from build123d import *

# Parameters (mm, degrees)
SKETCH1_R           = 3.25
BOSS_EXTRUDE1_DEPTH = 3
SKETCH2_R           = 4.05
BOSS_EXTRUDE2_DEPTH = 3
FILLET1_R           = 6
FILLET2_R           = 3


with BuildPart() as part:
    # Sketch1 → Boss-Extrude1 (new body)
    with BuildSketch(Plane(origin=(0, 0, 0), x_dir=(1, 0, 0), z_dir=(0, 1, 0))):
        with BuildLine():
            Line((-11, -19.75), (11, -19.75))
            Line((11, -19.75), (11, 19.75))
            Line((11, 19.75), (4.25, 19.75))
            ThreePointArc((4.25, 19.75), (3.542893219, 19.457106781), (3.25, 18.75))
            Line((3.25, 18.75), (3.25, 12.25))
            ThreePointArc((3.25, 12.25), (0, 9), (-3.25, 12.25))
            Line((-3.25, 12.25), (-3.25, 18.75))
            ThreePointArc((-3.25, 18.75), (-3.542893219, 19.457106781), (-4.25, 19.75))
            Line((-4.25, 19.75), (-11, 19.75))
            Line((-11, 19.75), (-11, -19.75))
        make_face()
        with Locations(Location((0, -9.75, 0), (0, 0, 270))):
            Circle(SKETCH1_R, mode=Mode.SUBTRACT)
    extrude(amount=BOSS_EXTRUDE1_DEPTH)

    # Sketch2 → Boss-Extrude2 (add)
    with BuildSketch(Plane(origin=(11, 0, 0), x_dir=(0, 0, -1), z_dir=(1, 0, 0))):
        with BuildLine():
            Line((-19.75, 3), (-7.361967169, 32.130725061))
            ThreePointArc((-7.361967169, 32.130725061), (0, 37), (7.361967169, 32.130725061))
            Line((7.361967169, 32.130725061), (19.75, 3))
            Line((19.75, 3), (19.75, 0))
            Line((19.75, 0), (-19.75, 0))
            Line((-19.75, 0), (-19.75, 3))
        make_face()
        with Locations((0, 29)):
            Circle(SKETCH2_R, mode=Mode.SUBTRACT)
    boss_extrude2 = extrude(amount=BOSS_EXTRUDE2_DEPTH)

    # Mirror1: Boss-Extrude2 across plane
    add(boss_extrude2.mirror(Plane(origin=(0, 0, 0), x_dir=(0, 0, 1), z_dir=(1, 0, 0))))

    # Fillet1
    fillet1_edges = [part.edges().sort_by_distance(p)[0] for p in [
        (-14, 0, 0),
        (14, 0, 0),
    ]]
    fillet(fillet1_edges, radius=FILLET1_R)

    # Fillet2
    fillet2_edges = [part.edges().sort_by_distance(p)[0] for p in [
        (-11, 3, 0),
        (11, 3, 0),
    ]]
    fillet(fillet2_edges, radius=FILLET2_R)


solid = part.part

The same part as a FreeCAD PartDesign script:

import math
import FreeCAD as App
import Part
import Sketcher
from FreeCAD import Vector


def edges_at(feature, points):
    """Names of the edges that pass closest to the given points."""
    edges = feature.Shape.Edges
    near = lambda p: min(range(len(edges)), key=lambda i: edges[i].distToShape(Part.Vertex(*p))[0])
    return sorted({f"Edge{near(p) + 1}" for p in points})

doc = App.newDocument("Part")
params = doc.addObject("Spreadsheet::Sheet", "Params")
for row, (alias, value) in enumerate([
    ("sketch1_radius", "1 mm"),
    ("sketch1_diameter", "6.5 mm"),
    ("sketch1_width", "22 mm"),
    ("sketch1_height", "39.5 mm"),
    ("sketch1_height2", "6.5 mm"),
    ("pad1_length", "3 mm"),
    ("sketch2_radius", "8 mm"),
    ("sketch2_diameter", "8.1 mm"),
    ("sketch2_width", "3 mm"),
    ("sketch2_height", "39.5 mm"),
    ("pad2_length", "3 mm"),
    ("fillet_radius", "6 mm"),
    ("fillet2_radius", "3 mm"),
], start=1):
    params.set(f"A{row}", alias)
    params.set(f"B{row}", "=" + value)
    params.setAlias(f"B{row}", alias)

body = doc.addObject("PartDesign::Body", "Body")

# Sketch on XZ plane
sketch1 = body.newObject("Sketcher::SketchObject", "Sketch")
sketch1.AttachmentSupport = (doc.getObject("XZ_Plane"), [""])
sketch1.MapMode = "FlatFace"
sketch1.addGeometry(Part.LineSegment(Vector(-11, 19.8, 0), Vector(11, 19.8, 0)), False)
sketch1.addGeometry(Part.LineSegment(Vector(11, 19.8, 0), Vector(11, -19.8, 0)), False)
sketch1.addGeometry(Part.LineSegment(Vector(11, -19.8, 0), Vector(4.2, -19.8, 0)), False)
sketch1.addGeometry(Part.ArcOfCircle(Part.Circle(Vector(4.3, -18.7, 0), Vector(0, 0, 1), 1), math.radians(-180), math.radians(-90)), False)
sketch1.addGeometry(Part.LineSegment(Vector(3.2, -18.8, 0), Vector(3.2, -12.2, 0)), False)
sketch1.addGeometry(Part.ArcOfCircle(Part.Circle(Vector(0, -12.2, 0), Vector(0, 0, 1), 3.2), math.radians(0), math.radians(180)), False)
sketch1.addGeometry(Part.LineSegment(Vector(-3.2, -12.2, 0), Vector(-3.2, -18.8, 0)), False)
sketch1.addGeometry(Part.ArcOfCircle(Part.Circle(Vector(-4.3, -18.7, 0), Vector(0, 0, 1), 1), math.radians(-90), math.radians(0)), False)
sketch1.addGeometry(Part.LineSegment(Vector(-4.2, -19.8, 0), Vector(-11, -19.8, 0)), False)
sketch1.addGeometry(Part.LineSegment(Vector(-11, -19.8, 0), Vector(-11, 19.8, 0)), False)
sketch1.addGeometry(Part.Circle(Vector(0, 9.8, 0), Vector(0, 0, 1), 3.2), False)
sketch1.addConstraint(Sketcher.Constraint("Coincident", 0, 2, 1, 1))
sketch1.addConstraint(Sketcher.Constraint("Coincident", 1, 2, 2, 1))
sketch1.addConstraint(Sketcher.Constraint("Tangent", 2, 2, 3, 2))
sketch1.addConstraint(Sketcher.Constraint("Tangent", 3, 1, 4, 1))
sketch1.addConstraint(Sketcher.Constraint("Tangent", 4, 2, 5, 1))
sketch1.addConstraint(Sketcher.Constraint("Tangent", 5, 2, 6, 1))
sketch1.addConstraint(Sketcher.Constraint("Tangent", 6, 2, 7, 2))
sketch1.addConstraint(Sketcher.Constraint("Tangent", 7, 1, 8, 1))
sketch1.addConstraint(Sketcher.Constraint("Coincident", 8, 2, 9, 1))
sketch1.addConstraint(Sketcher.Constraint("Coincident", 9, 2, 0, 1))
sketch1.addConstraint(Sketcher.Constraint("Horizontal", 0))
sketch1.addConstraint(Sketcher.Constraint("Vertical", 1))
sketch1.addConstraint(Sketcher.Constraint("Horizontal", 2))
sketch1.addConstraint(Sketcher.Constraint("Vertical", 4))
sketch1.addConstraint(Sketcher.Constraint("Vertical", 6))
sketch1.addConstraint(Sketcher.Constraint("Horizontal", 8))
sketch1.addConstraint(Sketcher.Constraint("Vertical", 9))
sketch1.addConstraint(Sketcher.Constraint("Equal", 3, 7))
sketch1.addConstraint(Sketcher.Constraint("Equal", 5, 10))
sketch1.addConstraint(Sketcher.Constraint("Symmetric", 0, 2, 8, 2, -1, 1))
sketch1.addConstraint(Sketcher.Constraint("Symmetric", 3, 3, 7, 3, -2))
sketch1.addConstraint(Sketcher.Constraint("PointOnObject", 10, 3, -2))
sketch1.addConstraint(Sketcher.Constraint("Radius", 3, 1.0))
sketch1.addConstraint(Sketcher.Constraint("Diameter", 10, 6.5))
sketch1.addConstraint(Sketcher.Constraint("DistanceX", 0, 1, 0, 2, 22.0))
sketch1.addConstraint(Sketcher.Constraint("DistanceY", 1, 2, 1, 1, 39.5))
sketch1.addConstraint(Sketcher.Constraint("DistanceY", 4, 1, 4, 2, 6.5))
sketch1.addConstraint(Sketcher.Constraint("DistanceY", 5, 3, 10, 3, 22.0))
sketch1.setExpression("Constraints[22]", "Params.sketch1_radius")
sketch1.setExpression("Constraints[23]", "Params.sketch1_diameter")
sketch1.setExpression("Constraints[24]", "Params.sketch1_width")
sketch1.setExpression("Constraints[25]", "Params.sketch1_height")
sketch1.setExpression("Constraints[26]", "Params.sketch1_height2")
pad1 = body.newObject("PartDesign::Pad", "Pad")
pad1.Profile = sketch1
pad1.setExpression("Length", "Params.pad1_length")
pad1.Reversed = True

# Sketch on YZ plane
sketch2 = body.newObject("Sketcher::SketchObject", "Sketch001")
sketch2.AttachmentSupport = (doc.getObject("YZ_Plane"), [""])
sketch2.MapMode = "FlatFace"
sketch2.AttachmentOffset = App.Placement(Vector(0, 0, 11), App.Rotation())
sketch2.addGeometry(Part.LineSegment(Vector(32.1, 7.4, 0), Vector(3, 19.8, 0)), False)
sketch2.addGeometry(Part.LineSegment(Vector(3, 19.8, 0), Vector(0, 19.8, 0)), False)
sketch2.addGeometry(Part.LineSegment(Vector(0, 19.8, 0), Vector(0, -19.8, 0)), False)
sketch2.addGeometry(Part.LineSegment(Vector(0, -19.8, 0), Vector(3, -19.8, 0)), False)
sketch2.addGeometry(Part.LineSegment(Vector(3, -19.8, 0), Vector(32.1, -7.4, 0)), False)
sketch2.addGeometry(Part.ArcOfCircle(Part.Circle(Vector(29, 0, 0), Vector(0, 0, 1), 8), math.radians(-67), math.radians(67)), False)
sketch2.addGeometry(Part.Circle(Vector(29, 0, 0), Vector(0, 0, 1), 4), False)
sketch2.addConstraint(Sketcher.Constraint("Coincident", 0, 2, 1, 1))
sketch2.addConstraint(Sketcher.Constraint("Coincident", 1, 2, 2, 1))
sketch2.addConstraint(Sketcher.Constraint("Coincident", 2, 2, 3, 1))
sketch2.addConstraint(Sketcher.Constraint("Coincident", 3, 2, 4, 1))
sketch2.addConstraint(Sketcher.Constraint("Tangent", 4, 2, 5, 1))
sketch2.addConstraint(Sketcher.Constraint("Tangent", 5, 2, 0, 1))
sketch2.addConstraint(Sketcher.Constraint("Horizontal", 1))
sketch2.addConstraint(Sketcher.Constraint("Vertical", 2))
sketch2.addConstraint(Sketcher.Constraint("Horizontal", 3))
sketch2.addConstraint(Sketcher.Constraint("Coincident", 6, 3, 5, 3))
sketch2.addConstraint(Sketcher.Constraint("Symmetric", 1, 2, 2, 2, -1, 1))
sketch2.addConstraint(Sketcher.Constraint("Symmetric", 4, 2, 5, 2, -1))
sketch2.addConstraint(Sketcher.Constraint("Radius", 5, 8.0))
sketch2.addConstraint(Sketcher.Constraint("Diameter", 6, 8.1))
sketch2.addConstraint(Sketcher.Constraint("DistanceX", 1, 2, 1, 1, 3.0))
sketch2.addConstraint(Sketcher.Constraint("DistanceY", 2, 2, 2, 1, 39.5))
sketch2.addConstraint(Sketcher.Constraint("DistanceX", -1, 1, 5, 3, 29.0))
sketch2.setExpression("Constraints[12]", "Params.sketch2_radius")
sketch2.setExpression("Constraints[13]", "Params.sketch2_diameter")
sketch2.setExpression("Constraints[14]", "Params.sketch2_width")
sketch2.setExpression("Constraints[15]", "Params.sketch2_height")
pad2 = body.newObject("PartDesign::Pad", "Pad001")
pad2.Profile = sketch2
pad2.setExpression("Length", "Params.pad2_length")
doc.recompute()

mirrored = body.newObject("PartDesign::Mirrored", "Mirrored")
mirrored.Originals = [pad2]
mirrored.MirrorPlane = (doc.getObject("YZ_Plane"), [""])
body.Tip = mirrored
doc.recompute()

fillet = body.newObject("PartDesign::Fillet", "Fillet")
fillet.Base = (mirrored, edges_at(mirrored, [(-14, 0, 0), (14, 0, 0)]))
fillet.setExpression("Radius", "Params.fillet_radius")
doc.recompute()

fillet2 = body.newObject("PartDesign::Fillet", "Fillet001")
fillet2.Base = (fillet, edges_at(fillet, [(-11, 3, 0), (11, 3, 0)]))
fillet2.setExpression("Radius", "Params.fillet2_radius")

doc.recompute()
